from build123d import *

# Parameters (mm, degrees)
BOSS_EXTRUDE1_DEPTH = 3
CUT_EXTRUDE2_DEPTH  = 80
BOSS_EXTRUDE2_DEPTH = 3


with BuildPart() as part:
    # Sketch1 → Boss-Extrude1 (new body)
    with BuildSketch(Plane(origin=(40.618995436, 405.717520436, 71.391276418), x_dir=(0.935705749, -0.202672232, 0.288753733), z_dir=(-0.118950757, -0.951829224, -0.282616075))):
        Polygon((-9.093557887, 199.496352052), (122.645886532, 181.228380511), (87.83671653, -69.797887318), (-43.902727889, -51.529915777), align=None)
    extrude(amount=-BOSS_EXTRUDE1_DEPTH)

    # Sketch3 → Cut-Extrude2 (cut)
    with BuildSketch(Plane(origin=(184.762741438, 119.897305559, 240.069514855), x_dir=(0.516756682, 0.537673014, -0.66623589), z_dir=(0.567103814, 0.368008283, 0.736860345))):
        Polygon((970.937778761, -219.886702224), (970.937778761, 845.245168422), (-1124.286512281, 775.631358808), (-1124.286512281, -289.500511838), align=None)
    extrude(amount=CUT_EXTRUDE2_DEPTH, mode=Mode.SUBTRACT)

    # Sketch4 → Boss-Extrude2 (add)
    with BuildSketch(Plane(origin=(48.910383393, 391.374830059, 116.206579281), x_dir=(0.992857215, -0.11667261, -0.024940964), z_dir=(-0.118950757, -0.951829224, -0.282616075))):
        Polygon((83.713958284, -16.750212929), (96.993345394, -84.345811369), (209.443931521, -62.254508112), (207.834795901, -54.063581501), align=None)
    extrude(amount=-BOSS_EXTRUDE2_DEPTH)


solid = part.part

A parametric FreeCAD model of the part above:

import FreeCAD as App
import Part
import Sketcher

V = App.Vector
Q = App.Units.Quantity


def add_polygon(sketch, points):
    """Adds a closed chain of lines whose ends are joined by coincident constraints."""
    first, n = sketch.GeometryCount, len(points)
    for a, b in zip(points, points[1:] + points[:1]):
        sketch.addGeometry(Part.LineSegment(App.Vector(*a, 0), App.Vector(*b, 0)), False)
    for i in range(n):
        sketch.addConstraint(Sketcher.Constraint("Coincident", first + i, 2, first + (i + 1) % n, 1))

doc = App.newDocument("Part")
params = doc.addObject("Spreadsheet::Sheet", "Params")
for row, (alias, value) in enumerate([
    ("sketch1_length", "133 mm"),
    ("pad1_length", "3 mm"),
    ("pocket1_length", "80 mm"),
    ("sketch3_length", "114.6 mm"),
    ("pad2_length", "3 mm"),
], start=1):
    params.set(f"A{row}", alias)
    params.set(f"B{row}", "=" + value)
    params.setAlias(f"B{row}", alias)

body = doc.addObject("PartDesign::Body", "Body")

# Sketch on an angled plane
sketch1 = body.newObject("Sketcher::SketchObject", "Sketch")
sketch1.Placement = App.Placement(V(40.618995, 405.71752, 71.391276), App.Rotation(V(0.935705749, -0.202672232, 0.288753733), V(-0.332122672, -0.230098011, 0.914740092), V(-0.118950757, -0.951829224, -0.282616075), "ZXY"))
add_polygon(sketch1, [(123, 181), (-9, 199), (-44, -52), (88, -70)])  # lines 0-3
sketch1.addConstraint([
    Sketcher.Constraint("Perpendicular", 0, 1),
    Sketcher.Constraint("Perpendicular", 1, 2),
    Sketcher.Constraint("Perpendicular", 2, 3),
    Sketcher.Constraint("Distance", 0, Q("133 mm")),
    Sketcher.Constraint("DistanceY", -1, 1, 3, 2, Q("181.228381 mm")),
    Sketcher.Constraint("DistanceX", 1, 2, 0, 2, Q("34.80917 mm")),
    Sketcher.Constraint("DistanceY", 1, 2, 0, 2, Q("251.026268 mm")),
    Sketcher.Constraint("DistanceX", 0, 2, -1, 1, Q("9.093558 mm")),
])
sketch1.setExpression("Constraints[7]", "Params.sketch1_length")
pad1 = body.newObject("PartDesign::Pad", "Pad")
pad1.Profile = sketch1
pad1.setExpression("Length", "Params.pad1_length")
pad1.Reversed = True

# Sketch on an angled plane
sketch2 = body.newObject("Sketcher::SketchObject", "Sketch001")
sketch2.Placement = App.Placement(V(184.762741, 119.897306, 240.069515), App.Rotation(V(0.516756682, 0.537673014, -0.66623589), V(-0.641370249, 0.758602421, 0.114745678), V(0.567103814, 0.368008283, 0.736860345), "ZXY"))
add_polygon(sketch2, [(971, -220), (971, 845), (-1124, 776), (-1124, -290)])  # lines 0-3
sketch2.addConstraint([
    Sketcher.Constraint("Vertical", 0),
    Sketcher.Constraint("Vertical", 2),
    Sketcher.Constraint("Parallel", 1, 3),
    Sketcher.Constraint("DistanceY", 0, 1, 0, 2, Q("1065.13187 mm")),
    Sketcher.Constraint("Distance", 1, Q("2096.38043 mm")),
    Sketcher.Constraint("DistanceX", -1, 1, 0, 2, Q("970.937778 mm")),
    Sketcher.Constraint("DistanceY", -1, 1, 0, 2, Q("845.245168 mm")),
    Sketcher.Constraint("DistanceX", 1, 2, -1, 1, Q("1124.286512 mm")),
])
pocket1 = body.newObject("PartDesign::Pocket", "Pocket")
pocket1.Profile = sketch2
pocket1.setExpression("Length", "Params.pocket1_length")
pocket1.Reversed = True

# Sketch on an angled plane
sketch3 = body.newObject("Sketcher::SketchObject", "Sketch002")
sketch3.Placement = App.Placement(V(48.910383, 391.37483, 116.206579), App.Rotation(V(0.992857215, -0.11667261, -0.024940964), V(-0.009234017, -0.283564156, 0.958908808), V(-0.118950757, -0.951829224, -0.282616075), "ZXY"))
add_polygon(sketch3, [(84, -17), (97, -84), (209, -62), (208, -54)])  # lines 0-3
sketch3.addConstraint([
    Sketcher.Constraint("Perpendicular", 0, 1),
    Sketcher.Constraint("Perpendicular", 1, 2),
    Sketcher.Constraint("Distance", 1, Q("114.6 mm")),
    Sketcher.Constraint("DistanceY", 0, 2, 3, 2, Q("67.595598 mm")),
    Sketcher.Constraint("Distance", 0, Q("68.887641 mm")),
    Sketcher.Constraint("Distance", 2, Q("8.34749 mm")),
    Sketcher.Constraint("DistanceY", 0, 2, -1, 1, Q("84.345811 mm")),
    Sketcher.Constraint("DistanceX", -1, 1, 1, 2, Q("209.443931 mm")),
])
sketch3.setExpression("Constraints[6]", "Params.sketch3_length")
pad2 = body.newObject("PartDesign::Pad", "Pad001")
pad2.Profile = sketch3
pad2.setExpression("Length", "Params.pad2_length")
pad2.Reversed = True

doc.recompute()
